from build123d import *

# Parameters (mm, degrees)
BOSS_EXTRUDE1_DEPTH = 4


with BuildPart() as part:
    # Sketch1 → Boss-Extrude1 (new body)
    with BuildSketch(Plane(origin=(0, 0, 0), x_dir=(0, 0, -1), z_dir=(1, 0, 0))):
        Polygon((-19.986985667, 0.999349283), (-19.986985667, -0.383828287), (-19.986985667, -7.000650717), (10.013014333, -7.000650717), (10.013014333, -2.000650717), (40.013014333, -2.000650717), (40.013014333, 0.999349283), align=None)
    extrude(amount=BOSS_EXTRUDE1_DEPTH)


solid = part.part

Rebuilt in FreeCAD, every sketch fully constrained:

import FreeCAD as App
import Part
import Sketcher
from FreeCAD import Vector
Q = App.Units.Quantity

doc = App.newDocument("Part")
body = doc.addObject("PartDesign::Body", "Body")

# Sketch on YZ plane
sketch1 = body.newObject("Sketcher::SketchObject", "Sketch")
sketch1.AttachmentSupport = (doc.getObject("YZ_Plane"), [""])
sketch1.MapMode = "FlatFace"
sketch1.addGeometry([
    Part.LineSegment(Vector(1, 20, 0), Vector(-7, 20, 0)),  # 0
    Part.LineSegment(Vector(-7, 20, 0), Vector(-7, -10, 0)),  # 1
    Part.LineSegment(Vector(-7, -10, 0), Vector(-2, -10, 0)),  # 2
    Part.LineSegment(Vector(-2, -10, 0), Vector(-2, -40, 0)),  # 3
    Part.LineSegment(Vector(-2, -40, 0), Vector(1, -40, 0)),  # 4
    Part.LineSegment(Vector(1, -40, 0), Vector(1, 20, 0)),  # 5
], False)
sketch1.addConstraint([
    Sketcher.Constraint("Coincident", 0, 2, 1, 1),
    Sketcher.Constraint("Coincident", 1, 2, 2, 1),
    Sketcher.Constraint("Coincident", 2, 2, 3, 1),
    Sketcher.Constraint("Coincident", 3, 2, 4, 1),
    Sketcher.Constraint("Coincident", 4, 2, 5, 1),
    Sketcher.Constraint("Coincident", 5, 2, 0, 1),
    Sketcher.Constraint("Horizontal", 0),
    Sketcher.Constraint("Vertical", 1),
    Sketcher.Constraint("Horizontal", 2),
    Sketcher.Constraint("Vertical", 3),
    Sketcher.Constraint("Horizontal", 4),
    Sketcher.Constraint("Vertical", 5),
    Sketcher.Constraint("Equal", 1, 3),
    Sketcher.Constraint("DistanceX", 0, 2, 0, 1, Q("8 mm")),
    Sketcher.Constraint("DistanceX", 2, 1, 2, 2, Q("5 mm")),
    Sketcher.Constraint("DistanceY", 1, 2, 1, 1, Q("30 mm")),
    Sketcher.Constraint("DistanceX", 0, 2, -1, 1, Q("7.000651 mm")),
    Sketcher.Constraint("DistanceY", -1, 1, 0, 2, Q("19.986986 mm")),
])
pad1 = body.newObject("PartDesign::Pad", "Pad")
pad1.Profile = sketch1
pad1.Length = 4

doc.recompute()
